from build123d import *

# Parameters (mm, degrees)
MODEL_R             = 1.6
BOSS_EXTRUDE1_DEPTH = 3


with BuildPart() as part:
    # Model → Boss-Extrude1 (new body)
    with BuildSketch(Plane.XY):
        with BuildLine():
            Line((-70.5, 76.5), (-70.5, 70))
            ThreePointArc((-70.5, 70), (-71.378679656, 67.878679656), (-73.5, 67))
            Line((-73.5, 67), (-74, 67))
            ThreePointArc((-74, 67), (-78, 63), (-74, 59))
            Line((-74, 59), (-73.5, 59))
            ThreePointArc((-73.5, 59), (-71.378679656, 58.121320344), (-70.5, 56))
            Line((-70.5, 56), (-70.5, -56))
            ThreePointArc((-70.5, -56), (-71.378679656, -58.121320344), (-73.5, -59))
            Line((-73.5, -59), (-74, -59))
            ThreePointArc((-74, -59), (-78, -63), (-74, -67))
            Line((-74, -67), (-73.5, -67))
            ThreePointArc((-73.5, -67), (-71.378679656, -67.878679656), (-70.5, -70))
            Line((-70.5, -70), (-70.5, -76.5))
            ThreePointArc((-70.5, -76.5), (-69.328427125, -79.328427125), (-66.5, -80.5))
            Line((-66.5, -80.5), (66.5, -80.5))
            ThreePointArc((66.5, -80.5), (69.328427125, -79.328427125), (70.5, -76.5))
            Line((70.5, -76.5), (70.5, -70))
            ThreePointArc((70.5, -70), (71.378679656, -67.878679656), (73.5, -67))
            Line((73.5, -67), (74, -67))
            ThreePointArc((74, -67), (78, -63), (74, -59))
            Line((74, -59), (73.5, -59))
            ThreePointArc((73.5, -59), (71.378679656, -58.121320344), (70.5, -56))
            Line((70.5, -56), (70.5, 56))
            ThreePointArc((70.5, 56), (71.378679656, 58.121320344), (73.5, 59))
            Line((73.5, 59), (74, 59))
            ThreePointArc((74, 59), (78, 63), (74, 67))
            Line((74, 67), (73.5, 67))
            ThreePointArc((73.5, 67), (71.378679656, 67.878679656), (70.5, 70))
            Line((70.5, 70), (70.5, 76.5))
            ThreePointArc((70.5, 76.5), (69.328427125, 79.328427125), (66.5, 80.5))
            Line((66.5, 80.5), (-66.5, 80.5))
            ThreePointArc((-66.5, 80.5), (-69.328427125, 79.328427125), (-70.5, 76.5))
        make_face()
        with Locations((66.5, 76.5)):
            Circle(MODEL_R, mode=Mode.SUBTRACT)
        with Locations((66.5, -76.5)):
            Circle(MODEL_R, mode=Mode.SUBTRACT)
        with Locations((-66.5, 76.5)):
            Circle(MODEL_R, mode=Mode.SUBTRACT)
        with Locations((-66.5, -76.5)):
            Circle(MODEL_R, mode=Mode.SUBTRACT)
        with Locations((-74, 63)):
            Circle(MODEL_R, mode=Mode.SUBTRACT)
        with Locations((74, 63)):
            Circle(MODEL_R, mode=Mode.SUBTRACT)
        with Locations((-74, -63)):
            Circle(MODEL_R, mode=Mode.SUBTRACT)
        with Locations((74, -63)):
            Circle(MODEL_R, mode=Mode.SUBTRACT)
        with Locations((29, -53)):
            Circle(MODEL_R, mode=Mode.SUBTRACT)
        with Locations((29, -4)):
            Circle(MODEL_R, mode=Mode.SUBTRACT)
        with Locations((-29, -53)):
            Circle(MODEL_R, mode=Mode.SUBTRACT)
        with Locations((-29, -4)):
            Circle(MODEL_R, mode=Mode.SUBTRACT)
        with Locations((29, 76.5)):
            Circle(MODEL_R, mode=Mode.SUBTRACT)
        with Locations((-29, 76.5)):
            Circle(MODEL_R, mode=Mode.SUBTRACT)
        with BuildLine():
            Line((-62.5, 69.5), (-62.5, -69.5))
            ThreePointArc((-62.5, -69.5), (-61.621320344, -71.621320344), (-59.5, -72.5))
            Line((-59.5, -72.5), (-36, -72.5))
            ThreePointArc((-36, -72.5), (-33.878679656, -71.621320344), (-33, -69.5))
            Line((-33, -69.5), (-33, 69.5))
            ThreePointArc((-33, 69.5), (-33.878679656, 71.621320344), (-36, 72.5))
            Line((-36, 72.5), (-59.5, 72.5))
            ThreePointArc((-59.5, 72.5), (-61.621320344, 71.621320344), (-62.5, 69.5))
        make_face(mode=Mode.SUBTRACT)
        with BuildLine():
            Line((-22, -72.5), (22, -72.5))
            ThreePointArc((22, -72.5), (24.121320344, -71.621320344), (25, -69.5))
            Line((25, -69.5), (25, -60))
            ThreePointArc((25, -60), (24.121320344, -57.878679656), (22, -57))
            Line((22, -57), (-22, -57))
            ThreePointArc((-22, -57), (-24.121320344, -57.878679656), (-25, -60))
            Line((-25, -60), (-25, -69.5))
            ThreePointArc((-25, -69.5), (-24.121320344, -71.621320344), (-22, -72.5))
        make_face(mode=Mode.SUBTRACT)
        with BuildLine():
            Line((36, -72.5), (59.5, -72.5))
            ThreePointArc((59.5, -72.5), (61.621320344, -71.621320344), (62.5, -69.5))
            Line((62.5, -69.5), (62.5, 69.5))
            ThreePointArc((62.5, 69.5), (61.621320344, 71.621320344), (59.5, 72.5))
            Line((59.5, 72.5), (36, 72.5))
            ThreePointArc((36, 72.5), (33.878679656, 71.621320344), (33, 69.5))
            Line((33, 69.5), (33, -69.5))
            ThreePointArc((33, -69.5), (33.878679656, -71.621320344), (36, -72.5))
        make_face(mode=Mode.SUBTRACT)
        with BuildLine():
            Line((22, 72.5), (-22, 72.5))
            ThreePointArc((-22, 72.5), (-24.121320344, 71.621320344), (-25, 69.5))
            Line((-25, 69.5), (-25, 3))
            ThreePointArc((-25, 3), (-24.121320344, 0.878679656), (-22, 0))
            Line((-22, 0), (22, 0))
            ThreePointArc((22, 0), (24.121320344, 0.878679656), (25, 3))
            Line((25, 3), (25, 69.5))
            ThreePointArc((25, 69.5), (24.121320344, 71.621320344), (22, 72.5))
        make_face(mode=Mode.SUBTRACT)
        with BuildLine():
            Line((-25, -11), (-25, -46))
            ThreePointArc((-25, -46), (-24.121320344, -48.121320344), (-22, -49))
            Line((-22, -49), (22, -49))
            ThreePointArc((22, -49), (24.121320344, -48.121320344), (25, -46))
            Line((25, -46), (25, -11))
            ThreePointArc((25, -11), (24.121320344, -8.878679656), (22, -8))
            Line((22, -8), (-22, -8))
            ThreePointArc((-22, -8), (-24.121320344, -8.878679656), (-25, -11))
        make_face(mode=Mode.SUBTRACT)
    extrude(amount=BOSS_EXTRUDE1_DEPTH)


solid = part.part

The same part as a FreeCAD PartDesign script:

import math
import FreeCAD as App
import Part
import Sketcher

V = App.Vector
Q = App.Units.Quantity

doc = App.newDocument("Part")
params = doc.addObject("Spreadsheet::Sheet", "Params")
for row, (alias, value) in enumerate([
    ("sketch1_radius", "3 mm"),
    ("sketch1_radius2", "4 mm"),
    ("sketch1_diameter", "3.2 mm"),
    ("sketch1_width", "133 mm"),
    ("sketch1_width2", "44 mm"),
    ("pad1_length", "3 mm"),
], start=1):
    params.set(f"A{row}", alias)
    params.set(f"B{row}", "=" + value)
    params.setAlias(f"B{row}", alias)

body = doc.addObject("PartDesign::Body", "Body")

sketch1 = doc.addObject("Sketcher::SketchObject", "Sketch")
body.addObject(sketch1)
sketch1.AttachmentSupport = (doc.XY_Plane, [""])
sketch1.MapMode = "FlatFace"
sketch1.addGeometry([
    Part.LineSegment(V(-70.5, 76.5, 0), V(-70.5, 70, 0)),
    Part.ArcOfCircle(Part.Circle(V(-73.5, 70, 0), V(0, 0, 1), 3), math.radians(-90), math.radians(0)),
    Part.LineSegment(V(-73.5, 67, 0), V(-74, 67, 0)),
    Part.ArcOfCircle(Part.Circle(V(-74, 63, 0), V(0, 0, 1), 4), math.radians(90), math.radians(270)),
    Part.LineSegment(V(-74, 59, 0), V(-73.5, 59, 0)),
    Part.ArcOfCircle(Part.Circle(V(-73.5, 56, 0), V(0, 0, 1), 3), math.radians(0), math.radians(90)),
    Part.LineSegment(V(-70.5, 56, 0), V(-70.5, -56, 0)),
    Part.ArcOfCircle(Part.Circle(V(-73.5, -56, 0), V(0, 0, 1), 3), math.radians(-90), math.radians(0)),
    Part.LineSegment(V(-73.5, -59, 0), V(-74, -59, 0)),
    Part.ArcOfCircle(Part.Circle(V(-74, -63, 0), V(0, 0, 1), 4), math.radians(90), math.radians(270)),
    Part.LineSegment(V(-74, -67, 0), V(-73.5, -67, 0)),
    Part.ArcOfCircle(Part.Circle(V(-73.5, -70, 0), V(0, 0, 1), 3), math.radians(0), math.radians(90)),
    Part.LineSegment(V(-70.5, -70, 0), V(-70.5, -76.5, 0)),
    Part.ArcOfCircle(Part.Circle(V(-66.5, -76.5, 0), V(0, 0, 1), 4), math.radians(180), math.radians(270)),
    Part.LineSegment(V(-66.5, -80.5, 0), V(66.5, -80.5, 0)),
    Part.ArcOfCircle(Part.Circle(V(66.5, -76.5, 0), V(0, 0, 1), 4), math.radians(-90), math.radians(0)),
    Part.LineSegment(V(70.5, -76.5, 0), V(70.5, -70, 0)),
    Part.ArcOfCircle(Part.Circle(V(73.5, -70, 0), V(0, 0, 1), 3), math.radians(90), math.radians(180)),
    Part.LineSegment(V(73.5, -67, 0), V(74, -67, 0)),
    Part.ArcOfCircle(Part.Circle(V(74, -63, 0), V(0, 0, 1), 4), math.radians(-90), math.radians(90)),
    Part.LineSegment(V(74, -59, 0), V(73.5, -59, 0)),
    Part.ArcOfCircle(Part.Circle(V(73.5, -56, 0), V(0, 0, 1), 3), math.radians(180), math.radians(270)),
    Part.LineSegment(V(70.5, -56, 0), V(70.5, 56, 0)),
    Part.ArcOfCircle(Part.Circle(V(73.5, 56, 0), V(0, 0, 1), 3), math.radians(90), math.radians(180)),
    Part.LineSegment(V(73.5, 59, 0), V(74, 59, 0)),
    Part.ArcOfCircle(Part.Circle(V(74, 63, 0), V(0, 0, 1), 4), math.radians(-90), math.radians(90)),
    Part.LineSegment(V(74, 67, 0), V(73.5, 67, 0)),
    Part.ArcOfCircle(Part.Circle(V(73.5, 70, 0), V(0, 0, 1), 3), math.radians(180), math.radians(270)),
    Part.LineSegment(V(70.5, 70, 0), V(70.5, 76.5, 0)),
    Part.ArcOfCircle(Part.Circle(V(66.5, 76.5, 0), V(0, 0, 1), 4), math.radians(0), math.radians(90)),
    Part.LineSegment(V(66.5, 80.5, 0), V(-66.5, 80.5, 0)),
    Part.ArcOfCircle(Part.Circle(V(-66.5, 76.5, 0), V(0, 0, 1), 4), math.radians(90), math.radians(180)),
    Part.Circle(V(-66.5, -76.5, 0), V(0, 0, 1), 1.6),
    Part.Circle(V(-74, -63, 0), V(0, 0, 1), 1.6),
    Part.Circle(V(-29, -53, 0), V(0, 0, 1), 1.6),
    Part.Circle(V(-29, -4, 0), V(0, 0, 1), 1.6),
    Part.LineSegment(V(22, -72.5, 0), V(-22, -72.5, 0)),
    Part.ArcOfCircle(Part.Circle(V(-22, -69.5, 0), V(0, 0, 1), 3), math.radians(180), math.radians(270)),
    Part.LineSegment(V(-25, -69.5, 0), V(-25, -60, 0)),
    Part.ArcOfCircle(Part.Circle(V(-22, -60, 0), V(0, 0, 1), 3), math.radians(90), math.radians(180)),
    Part.LineSegment(V(-22, -57, 0), V(22, -57, 0)),
    Part.ArcOfCircle(Part.Circle(V(22, -60, 0), V(0, 0, 1), 3), math.radians(0), math.radians(90)),
    Part.LineSegment(V(25, -60, 0), V(25, -69.5, 0)),
    Part.ArcOfCircle(Part.Circle(V(22, -69.5, 0), V(0, 0, 1), 3), math.radians(-90), math.radians(0)),
    Part.Circle(V(29, -53, 0), V(0, 0, 1), 1.6),
    Part.Circle(V(66.5, -76.5, 0), V(0, 0, 1), 1.6),
    Part.Circle(V(74, -63, 0), V(0, 0, 1), 1.6),
    Part.LineSegment(V(-25, -46, 0), V(-25, -11, 0)),
    Part.ArcOfCircle(Part.Circle(V(-22, -11, 0), V(0, 0, 1), 3), math.radians(90), math.radians(180)),
    Part.LineSegment(V(-22, -8, 0), V(22, -8, 0)),
    Part.ArcOfCircle(Part.Circle(V(22, -11, 0), V(0, 0, 1), 3), math.radians(0), math.radians(90)),
    Part.LineSegment(V(25, -11, 0), V(25, -46, 0)),
    Part.ArcOfCircle(Part.Circle(V(22, -46, 0), V(0, 0, 1), 3), math.radians(-90), math.radians(0)),
    Part.LineSegment(V(22, -49, 0), V(-22, -49, 0)),
    Part.ArcOfCircle(Part.Circle(V(-22, -46, 0), V(0, 0, 1), 3), math.radians(180), math.radians(270)),
    Part.Circle(V(29, -4, 0), V(0, 0, 1), 1.6),
    Part.LineSegment(V(-62.5, -69.5, 0), V(-62.5, 69.5, 0)),
    Part.ArcOfCircle(Part.Circle(V(-59.5, 69.5, 0), V(0, 0, 1), 3), math.radians(90), math.radians(180)),
    Part.LineSegment(V(-59.5, 72.5, 0), V(-36, 72.5, 0)),
    Part.ArcOfCircle(Part.Circle(V(-36, 69.5, 0), V(0, 0, 1), 3), math.radians(0), math.radians(90)),
    Part.LineSegment(V(-33, 69.5, 0), V(-33, -69.5, 0)),
    Part.ArcOfCircle(Part.Circle(V(-36, -69.5, 0), V(0, 0, 1), 3), math.radians(-90), math.radians(0)),
    Part.LineSegment(V(-36, -72.5, 0), V(-59.5, -72.5, 0)),
    Part.ArcOfCircle(Part.Circle(V(-59.5, -69.5, 0), V(0, 0, 1), 3), math.radians(180), math.radians(270)),
    Part.Circle(V(-74, 63, 0), V(0, 0, 1), 1.6),
    Part.Circle(V(-66.5, 76.5, 0), V(0, 0, 1), 1.6),
    Part.Circle(V(-29, 76.5, 0), V(0, 0, 1), 1.6),
    Part.LineSegment(V(-22, 72.5, 0), V(22, 72.5, 0)),
    Part.ArcOfCircle(Part.Circle(V(22, 69.5, 0), V(0, 0, 1), 3), math.radians(0), math.radians(90)),
    Part.LineSegment(V(25, 69.5, 0), V(25, 3, 0)),
    Part.ArcOfCircle(Part.Circle(V(22, 3, 0), V(0, 0, 1), 3), math.radians(-90), math.radians(0)),
    Part.LineSegment(V(22, 0, 0), V(-22, 0, 0)),
    Part.ArcOfCircle(Part.Circle(V(-22, 3, 0), V(0, 0, 1), 3), math.radians(180), math.radians(270)),
    Part.LineSegment(V(-25, 3, 0), V(-25, 69.5, 0)),
    Part.ArcOfCircle(Part.Circle(V(-22, 69.5, 0), V(0, 0, 1), 3), math.radians(90), math.radians(180)),
    Part.LineSegment(V(59.5, -72.5, 0), V(36, -72.5, 0)),
    Part.ArcOfCircle(Part.Circle(V(36, -69.5, 0), V(0, 0, 1), 3), math.radians(180), math.radians(270)),
    Part.LineSegment(V(33, -69.5, 0), V(33, 69.5, 0)),
    Part.ArcOfCircle(Part.Circle(V(36, 69.5, 0), V(0, 0, 1), 3), math.radians(90), math.radians(180)),
    Part.LineSegment(V(36, 72.5, 0), V(59.5, 72.5, 0)),
    Part.ArcOfCircle(Part.Circle(V(59.5, 69.5, 0), V(0, 0, 1), 3), math.radians(0), math.radians(90)),
    Part.LineSegment(V(62.5, 69.5, 0), V(62.5, -69.5, 0)),
    Part.ArcOfCircle(Part.Circle(V(59.5, -69.5, 0), V(0, 0, 1), 3), math.radians(-90), math.radians(0)),
    Part.Circle(V(29, 76.5, 0), V(0, 0, 1), 1.6),
    Part.Circle(V(74, 63, 0), V(0, 0, 1), 1.6),
    Part.Circle(V(66.5, 76.5, 0), V(0, 0, 1), 1.6),
], False)
sketch1.addConstraint([
    Sketcher.Constraint("Tangent", 0, 2, 1, 2),
    Sketcher.Constraint("Tangent", 1, 1, 2, 1),
    Sketcher.Constraint("Tangent", 2, 2, 3, 1),
    Sketcher.Constraint("Tangent", 3, 2, 4, 1),
    Sketcher.Constraint("Tangent", 4, 2, 5, 2),
    Sketcher.Constraint("Tangent", 5, 1, 6, 1),
    Sketcher.Constraint("Tangent", 6, 2, 7, 2),
    Sketcher.Constraint("Tangent", 7, 1, 8, 1),
    Sketcher.Constraint("Tangent", 8, 2, 9, 1),
    Sketcher.Constraint("Tangent", 9, 2, 10, 1),
    Sketcher.Constraint("Tangent", 10, 2, 11, 2),
    Sketcher.Constraint("Tangent", 11, 1, 12, 1),
    Sketcher.Constraint("Tangent", 12, 2, 13, 1),
    Sketcher.Constraint("Tangent", 13, 2, 14, 1),
    Sketcher.Constraint("Tangent", 14, 2, 15, 1),
    Sketcher.Constraint("Tangent", 15, 2, 16, 1),
    Sketcher.Constraint("Tangent", 16, 2, 17, 2),
    Sketcher.Constraint("Tangent", 17, 1, 18, 1),
    Sketcher.Constraint("Tangent", 18, 2, 19, 1),
    Sketcher.Constraint("Tangent", 19, 2, 20, 1),
    Sketcher.Constraint("Tangent", 20, 2, 21, 2),
    Sketcher.Constraint("Tangent", 21, 1, 22, 1),
    Sketcher.Constraint("Tangent", 22, 2, 23, 2),
    Sketcher.Constraint("Tangent", 23, 1, 24, 1),
    Sketcher.Constraint("Tangent", 24, 2, 25, 1),
    Sketcher.Constraint("Tangent", 25, 2, 26, 1),
    Sketcher.Constraint("Tangent", 26, 2, 27, 2),
    Sketcher.Constraint("Tangent", 27, 1, 28, 1),
    Sketcher.Constraint("Tangent", 28, 2, 29, 1),
    Sketcher.Constraint("Tangent", 29, 2, 30, 1),
    Sketcher.Constraint("Tangent", 30, 2, 31, 1),
    Sketcher.Constraint("Tangent", 31, 2, 0, 1),
    Sketcher.Constraint("Tangent", 36, 2, 37, 2),
    Sketcher.Constraint("Tangent", 37, 1, 38, 1),
    Sketcher.Constraint("Tangent", 38, 2, 39, 2),
    Sketcher.Constraint("Tangent", 39, 1, 40, 1),
    Sketcher.Constraint("Tangent", 40, 2, 41, 2),
    Sketcher.Constraint("Tangent", 41, 1, 42, 1),
    Sketcher.Constraint("Tangent", 42, 2, 43, 2),
    Sketcher.Constraint("Tangent", 43, 1, 36, 1),
    Sketcher.Constraint("Tangent", 47, 2, 48, 2),
    Sketcher.Constraint("Tangent", 48, 1, 49, 1),
    Sketcher.Constraint("Tangent", 49, 2, 50, 2),
    Sketcher.Constraint("Tangent", 50, 1, 51, 1),
    Sketcher.Constraint("Tangent", 51, 2, 52, 2),
    Sketcher.Constraint("Tangent", 52, 1, 53, 1),
    Sketcher.Constraint("Tangent", 53, 2, 54, 2),
    Sketcher.Constraint("Tangent", 54, 1, 47, 1),
    Sketcher.Constraint("Tangent", 56, 2, 57, 2),
    Sketcher.Constraint("Tangent", 57, 1, 58, 1),
    Sketcher.Constraint("Tangent", 58, 2, 59, 2),
    Sketcher.Constraint("Tangent", 59, 1, 60, 1),
    Sketcher.Constraint("Tangent", 60, 2, 61, 2),
    Sketcher.Constraint("Tangent", 61, 1, 62, 1),
    Sketcher.Constraint("Tangent", 62, 2, 63, 2),
    Sketcher.Constraint("Tangent", 63, 1, 56, 1),
    Sketcher.Constraint("Tangent", 67, 2, 68, 2),
    Sketcher.Constraint("Tangent", 68, 1, 69, 1),
    Sketcher.Constraint("Tangent", 69, 2, 70, 2),
    Sketcher.Constraint("Tangent", 70, 1, 71, 1),
    Sketcher.Constraint("Tangent", 71, 2, 72, 2),
    Sketcher.Constraint("Tangent", 72, 1, 73, 1),
    Sketcher.Constraint("Tangent", 73, 2, 74, 2),
    Sketcher.Constraint("Tangent", 74, 1, 67, 1),
    Sketcher.Constraint("Tangent", 75, 2, 76, 2),
    Sketcher.Constraint("Tangent", 76, 1, 77, 1),
    Sketcher.Constraint("Tangent", 77, 2, 78, 2),
    Sketcher.Constraint("Tangent", 78, 1, 79, 1),
    Sketcher.Constraint("Tangent", 79, 2, 80, 2),
    Sketcher.Constraint("Tangent", 80, 1, 81, 1),
    Sketcher.Constraint("Tangent", 81, 2, 82, 2),
    Sketcher.Constraint("Tangent", 82, 1, 75, 1),
    Sketcher.Constraint("Vertical", 0),
    Sketcher.Constraint("Horizontal", 2),
    Sketcher.Constraint("Horizontal", 4),
    Sketcher.Constraint("Vertical", 6),
    Sketcher.Constraint("Horizontal", 8),
    Sketcher.Constraint("Horizontal", 10),
    Sketcher.Constraint("Vertical", 12),
    Sketcher.Constraint("Horizontal", 14),
    Sketcher.Constraint("Vertical", 16),
    Sketcher.Constraint("Horizontal", 18),
    Sketcher.Constraint("Horizontal", 20),
    Sketcher.Constraint("Vertical", 22),
    Sketcher.Constraint("Horizontal", 24),
    Sketcher.Constraint("Horizontal", 26),
    Sketcher.Constraint("Vertical", 28),
    Sketcher.Constraint("Horizontal", 30),
    Sketcher.Constraint("Horizontal", 36),
    Sketcher.Constraint("Vertical", 38),
    Sketcher.Constraint("Horizontal", 40),
    Sketcher.Constraint("Vertical", 42),
    Sketcher.Constraint("Vertical", 47),
    Sketcher.Constraint("Horizontal", 49),
    Sketcher.Constraint("Vertical", 51),
    Sketcher.Constraint("Horizontal", 53),
    Sketcher.Constraint("Vertical", 56),
    Sketcher.Constraint("Horizontal", 58),
    Sketcher.Constraint("Vertical", 60),
    Sketcher.Constraint("Horizontal", 62),
    Sketcher.Constraint("Horizontal", 67),
    Sketcher.Constraint("Vertical", 69),
    Sketcher.Constraint("Horizontal", 71),
    Sketcher.Constraint("Vertical", 73),
    Sketcher.Constraint("Horizontal", 75),
    Sketcher.Constraint("Vertical", 77),
    Sketcher.Constraint("Horizontal", 79),
    Sketcher.Constraint("Vertical", 81),
    Sketcher.Constraint("Coincident", 32, 3, 13, 3),
    Sketcher.Constraint("Coincident", 33, 3, 9, 3),
    Sketcher.Constraint("Coincident", 45, 3, 15, 3),
    Sketcher.Constraint("Coincident", 46, 3, 19, 3),
    Sketcher.Constraint("Coincident", 64, 3, 3, 3),
    Sketcher.Constraint("Coincident", 65, 3, 31, 3),
    Sketcher.Constraint("Coincident", 84, 3, 25, 3),
    Sketcher.Constraint("Coincident", 85, 3, 29, 3),
    Sketcher.Constraint("Equal", 1, 5),
    Sketcher.Constraint("Equal", 5, 7),
    Sketcher.Constraint("Equal", 3, 9),
    Sketcher.Constraint("Equal", 7, 11),
    Sketcher.Constraint("Equal", 9, 13),
    Sketcher.Constraint("Equal", 13, 15),
    Sketcher.Constraint("Equal", 11, 17),
    Sketcher.Constraint("Equal", 15, 19),
    Sketcher.Constraint("Equal", 17, 21),
    Sketcher.Constraint("Equal", 21, 23),
    Sketcher.Constraint("Equal", 19, 25),
    Sketcher.Constraint("Equal", 23, 27),
    Sketcher.Constraint("Equal", 25, 29),
    Sketcher.Constraint("Equal", 29, 31),
    Sketcher.Constraint("Equal", 32, 33),
    Sketcher.Constraint("Equal", 33, 34),
    Sketcher.Constraint("Equal", 34, 35),
    Sketcher.Constraint("Equal", 27, 37),
    Sketcher.Constraint("Equal", 37, 39),
    Sketcher.Constraint("Equal", 39, 41),
    Sketcher.Constraint("Equal", 41, 43),
    Sketcher.Constraint("Equal", 35, 44),
    Sketcher.Constraint("Equal", 44, 45),
    Sketcher.Constraint("Equal", 45, 46),
    Sketcher.Constraint("Equal", 43, 48),
    Sketcher.Constraint("Equal", 48, 50),
    Sketcher.Constraint("Equal", 50, 52),
    Sketcher.Constraint("Equal", 52, 54),
    Sketcher.Constraint("Equal", 46, 55),
    Sketcher.Constraint("Equal", 54, 57),
    Sketcher.Constraint("Equal", 57, 59),
    Sketcher.Constraint("Equal", 59, 61),
    Sketcher.Constraint("Equal", 61, 63),
    Sketcher.Constraint("Equal", 55, 64),
    Sketcher.Constraint("Equal", 64, 65),
    Sketcher.Constraint("Equal", 65, 66),
    Sketcher.Constraint("Equal", 63, 68),
    Sketcher.Constraint("Equal", 68, 70),
    Sketcher.Constraint("Equal", 70, 72),
    Sketcher.Constraint("Equal", 72, 74),
    Sketcher.Constraint("Equal", 74, 76),
    Sketcher.Constraint("Equal", 76, 78),
    Sketcher.Constraint("Equal", 78, 80),
    Sketcher.Constraint("Equal", 80, 82),
    Sketcher.Constraint("Equal", 66, 83),
    Sketcher.Constraint("Equal", 83, 84),
    Sketcher.Constraint("Equal", 84, 85),
    Sketcher.Constraint("Symmetric", 1, 3, 17, 3, -1, 1),
    Sketcher.Constraint("Symmetric", 7, 3, 23, 3, -1, 1),
    Sketcher.Constraint("Symmetric", 13, 3, 29, 3, -1, 1),
    Sketcher.Constraint("Symmetric", 37, 3, 68, 3, -1, 1),
    Sketcher.Constraint("Symmetric", 59, 3, 76, 3, -1, 1),
    Sketcher.Constraint("Symmetric", 63, 3, 80, 3, -1, 1),
    Sketcher.Constraint("Symmetric", 70, 1, 71, 2, -1, 1),
    Sketcher.Constraint("Symmetric", 11, 3, 17, 3, -2),
    Sketcher.Constraint("Symmetric", 34, 3, 44, 3, -2),
    Sketcher.Constraint("Symmetric", 35, 3, 55, 3, -2),
    Sketcher.Constraint("Symmetric", 66, 3, 83, 3, -2),
    Sketcher.Constraint("Horizontal", 43, 3, 61, 3),
    Sketcher.Constraint("Horizontal", 65, 3, 66, 3),
    Sketcher.Constraint("Horizontal", 59, 3, 68, 3),
    Sketcher.Constraint("Vertical", 1, 3, 5, 3),
    Sketcher.Constraint("Vertical", 3, 3, 9, 3),
    Sketcher.Constraint("Vertical", 19, 3, 25, 3),
    Sketcher.Constraint("Vertical", 34, 3, 35, 3),
    Sketcher.Constraint("Vertical", 39, 3, 48, 3),
    Sketcher.Constraint("Vertical", 43, 3, 50, 3),
    Sketcher.Constraint("Vertical", 35, 3, 66, 3),
    Sketcher.Constraint("Vertical", 52, 3, 68, 3),
    Sketcher.Constraint("Equal", 10, 18),
    Sketcher.Constraint("Radius", 1, Q("3 mm")),
    Sketcher.Constraint("Radius", 3, Q("4 mm")),
    Sketcher.Constraint("Diameter", 32, Q("3.2 mm")),
    Sketcher.Constraint("DistanceX", 14, 1, 14, 2, Q("133 mm")),
    Sketcher.Constraint("DistanceX", 36, 2, 36, 1, Q("44 mm")),
    Sketcher.Constraint("DistanceY", 6, 2, 6, 1, Q("112 mm")),
    Sketcher.Constraint("DistanceY", 47, 1, 47, 2, Q("35 mm")),
    Sketcher.Constraint("DistanceY", 56, 1, 56, 2, Q("139 mm")),
    Sketcher.Constraint("DistanceX", 2, 2, 2, 1, Q("0.5 mm")),
    Sketcher.Constraint("DistanceX", 58, 1, 58, 2, Q("23.5 mm")),
    Sketcher.Constraint("DistanceY", 0, 2, 0, 1, Q("6.5 mm")),
    Sketcher.Constraint("DistanceY", 38, 1, 38, 2, Q("9.5 mm")),
    Sketcher.Constraint("DistanceX", 34, 3, -1, 1, Q("29 mm")),
    Sketcher.Constraint("DistanceY", 34, 3, -1, 1, Q("53 mm")),
    Sketcher.Constraint("DistanceY", 35, 3, -1, 1, Q("4 mm")),
    Sketcher.Constraint("DistanceY", 48, 3, -1, 1, Q("11 mm")),
    Sketcher.Constraint("DistanceX", 59, 3, -1, 1, Q("36 mm")),
])
sketch1.setExpression("Constraints[186]", "Params.sketch1_radius")
sketch1.setExpression("Constraints[187]", "Params.sketch1_radius2")
sketch1.setExpression("Constraints[188]", "Params.sketch1_diameter")
sketch1.setExpression("Constraints[189]", "Params.sketch1_width")
sketch1.setExpression("Constraints[190]", "Params.sketch1_width2")
pad1 = doc.addObject("PartDesign::Pad", "Pad")
body.addObject(pad1)
pad1.Profile = sketch1
pad1.setExpression("Length", "Params.pad1_length")

doc.recompute()
